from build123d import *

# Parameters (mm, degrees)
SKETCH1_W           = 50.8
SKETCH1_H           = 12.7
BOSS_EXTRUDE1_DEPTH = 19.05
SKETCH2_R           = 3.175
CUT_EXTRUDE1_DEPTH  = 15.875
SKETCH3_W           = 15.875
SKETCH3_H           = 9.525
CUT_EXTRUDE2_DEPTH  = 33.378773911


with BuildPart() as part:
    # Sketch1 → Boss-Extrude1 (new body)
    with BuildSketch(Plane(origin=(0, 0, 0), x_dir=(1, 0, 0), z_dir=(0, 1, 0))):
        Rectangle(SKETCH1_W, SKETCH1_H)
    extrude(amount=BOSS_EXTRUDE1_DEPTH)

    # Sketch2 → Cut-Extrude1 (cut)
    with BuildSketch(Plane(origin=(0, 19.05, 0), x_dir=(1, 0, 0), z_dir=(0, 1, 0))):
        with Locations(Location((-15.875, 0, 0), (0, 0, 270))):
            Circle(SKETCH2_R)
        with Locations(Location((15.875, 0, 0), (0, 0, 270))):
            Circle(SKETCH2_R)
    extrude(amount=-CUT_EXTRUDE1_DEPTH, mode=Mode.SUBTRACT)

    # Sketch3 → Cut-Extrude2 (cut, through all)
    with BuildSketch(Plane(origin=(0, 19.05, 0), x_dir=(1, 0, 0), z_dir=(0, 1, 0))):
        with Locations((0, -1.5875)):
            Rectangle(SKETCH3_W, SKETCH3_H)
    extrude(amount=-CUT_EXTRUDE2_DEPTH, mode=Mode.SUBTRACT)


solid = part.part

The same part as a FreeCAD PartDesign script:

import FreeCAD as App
import Part
import Sketcher
Q = App.Units.Quantity


def add_polygon(sketch, points):
    """Adds a closed chain of lines whose ends are joined by coincident constraints."""
    first, n = sketch.GeometryCount, len(points)
    for a, b in zip(points, points[1:] + points[:1]):
        sketch.addGeometry(Part.LineSegment(App.Vector(*a, 0), App.Vector(*b, 0)), False)
    for i in range(n):
        sketch.addConstraint(Sketcher.Constraint("Coincident", first + i, 2, first + (i + 1) % n, 1))

doc = App.newDocument("Part")
body = doc.addObject("PartDesign::Body", "Body")

# Sketch on XZ plane
sketch1 = body.newObject("Sketcher::SketchObject", "Sketch")
sketch1.AttachmentSupport = (doc.getObject("XZ_Plane"), [""])
sketch1.MapMode = "FlatFace"
add_polygon(sketch1, [(-25.4, -6.35), (-25.4, 6.35), (25.4, 6.35), (25.4, -6.35)])  # lines 0-3
sketch1.addConstraint(Sketcher.Constraint("Vertical", 0))
sketch1.addConstraint(Sketcher.Constraint("Horizontal", 1))
sketch1.addConstraint(Sketcher.Constraint("Vertical", 2))
sketch1.addConstraint(Sketcher.Constraint("Horizontal", 3))
sketch1.addConstraint(Sketcher.Constraint("Symmetric", 0, 2, 2, 2, -1, 1))
sketch1.addConstraint(Sketcher.Constraint("DistanceX", 1, 1, 1, 2, Q("2 in")))
sketch1.addConstraint(Sketcher.Constraint("DistanceY", 0, 1, 0, 2, Q("0.5 in")))
pad1 = body.newObject("PartDesign::Pad", "Pad")
pad1.Profile = sketch1
pad1.Length = Q("0.75 in")
pad1.Reversed = True

# Sketch on XZ plane
sketch2 = body.newObject("Sketcher::SketchObject", "Sketch001")
sketch2.AttachmentSupport = (doc.getObject("XZ_Plane"), [""])
sketch2.MapMode = "FlatFace"
sketch2.AttachmentOffset = App.Placement(App.Vector(0, 0, -0.75 * 25.4), App.Rotation())
sketch2.addGeometry(Part.Circle(App.Vector(-15.875, 0, 0), App.Vector(0, 0, 1), 3.175), False)
sketch2.addGeometry(Part.Circle(App.Vector(15.875, 0, 0), App.Vector(0, 0, 1), 3.175), False)
sketch2.addConstraint(Sketcher.Constraint("Equal", 0, 1))
sketch2.addConstraint(Sketcher.Constraint("Symmetric", 0, 3, 1, 3, -1, 1))
sketch2.addConstraint(Sketcher.Constraint("PointOnObject", 0, 3, -1))
sketch2.addConstraint(Sketcher.Constraint("Diameter", 0, Q("0.25 in")))
sketch2.addConstraint(Sketcher.Constraint("DistanceX", 0, 3, 1, 3, Q("1.25 in")))
pocket1 = body.newObject("PartDesign::Pocket", "Pocket")
pocket1.Profile = sketch2
pocket1.Length = Q("0.625 in")
pocket1.Reversed = True

# Sketch on XZ plane
sketch3 = body.newObject("Sketcher::SketchObject", "Sketch002")
sketch3.AttachmentSupport = (doc.getObject("XZ_Plane"), [""])
sketch3.MapMode = "FlatFace"
sketch3.AttachmentOffset = App.Placement(App.Vector(0, 0, -0.75 * 25.4), App.Rotation())
add_polygon(sketch3, [(-7.9375, -3.175), (-7.9375, 6.35), (7.9375, 6.35), (7.9375, -3.175)])  # lines 0-3
sketch3.addConstraint(Sketcher.Constraint("Vertical", 0))
sketch3.addConstraint(Sketcher.Constraint("Horizontal", 1))
sketch3.addConstraint(Sketcher.Constraint("Vertical", 2))
sketch3.addConstraint(Sketcher.Constraint("Horizontal", 3))
sketch3.addConstraint(Sketcher.Constraint("DistanceX", 1, 1, 1, 2, Q("0.625 in")))
sketch3.addConstraint(Sketcher.Constraint("DistanceY", 0, 1, 0, 2, Q("0.375 in")))
sketch3.addConstraint(Sketcher.Constraint("DistanceY", -1, 1, 0, 2, Q("0.25 in")))
sketch3.addConstraint(Sketcher.Constraint("DistanceX", 0, 2, -1, 1, Q("0.3125 in")))
pocket2 = body.newObject("PartDesign::Pocket", "Pocket001")
pocket2.Profile = sketch3
pocket2.Type = "ThroughAll"
pocket2.Reversed = True

doc.recompute()
